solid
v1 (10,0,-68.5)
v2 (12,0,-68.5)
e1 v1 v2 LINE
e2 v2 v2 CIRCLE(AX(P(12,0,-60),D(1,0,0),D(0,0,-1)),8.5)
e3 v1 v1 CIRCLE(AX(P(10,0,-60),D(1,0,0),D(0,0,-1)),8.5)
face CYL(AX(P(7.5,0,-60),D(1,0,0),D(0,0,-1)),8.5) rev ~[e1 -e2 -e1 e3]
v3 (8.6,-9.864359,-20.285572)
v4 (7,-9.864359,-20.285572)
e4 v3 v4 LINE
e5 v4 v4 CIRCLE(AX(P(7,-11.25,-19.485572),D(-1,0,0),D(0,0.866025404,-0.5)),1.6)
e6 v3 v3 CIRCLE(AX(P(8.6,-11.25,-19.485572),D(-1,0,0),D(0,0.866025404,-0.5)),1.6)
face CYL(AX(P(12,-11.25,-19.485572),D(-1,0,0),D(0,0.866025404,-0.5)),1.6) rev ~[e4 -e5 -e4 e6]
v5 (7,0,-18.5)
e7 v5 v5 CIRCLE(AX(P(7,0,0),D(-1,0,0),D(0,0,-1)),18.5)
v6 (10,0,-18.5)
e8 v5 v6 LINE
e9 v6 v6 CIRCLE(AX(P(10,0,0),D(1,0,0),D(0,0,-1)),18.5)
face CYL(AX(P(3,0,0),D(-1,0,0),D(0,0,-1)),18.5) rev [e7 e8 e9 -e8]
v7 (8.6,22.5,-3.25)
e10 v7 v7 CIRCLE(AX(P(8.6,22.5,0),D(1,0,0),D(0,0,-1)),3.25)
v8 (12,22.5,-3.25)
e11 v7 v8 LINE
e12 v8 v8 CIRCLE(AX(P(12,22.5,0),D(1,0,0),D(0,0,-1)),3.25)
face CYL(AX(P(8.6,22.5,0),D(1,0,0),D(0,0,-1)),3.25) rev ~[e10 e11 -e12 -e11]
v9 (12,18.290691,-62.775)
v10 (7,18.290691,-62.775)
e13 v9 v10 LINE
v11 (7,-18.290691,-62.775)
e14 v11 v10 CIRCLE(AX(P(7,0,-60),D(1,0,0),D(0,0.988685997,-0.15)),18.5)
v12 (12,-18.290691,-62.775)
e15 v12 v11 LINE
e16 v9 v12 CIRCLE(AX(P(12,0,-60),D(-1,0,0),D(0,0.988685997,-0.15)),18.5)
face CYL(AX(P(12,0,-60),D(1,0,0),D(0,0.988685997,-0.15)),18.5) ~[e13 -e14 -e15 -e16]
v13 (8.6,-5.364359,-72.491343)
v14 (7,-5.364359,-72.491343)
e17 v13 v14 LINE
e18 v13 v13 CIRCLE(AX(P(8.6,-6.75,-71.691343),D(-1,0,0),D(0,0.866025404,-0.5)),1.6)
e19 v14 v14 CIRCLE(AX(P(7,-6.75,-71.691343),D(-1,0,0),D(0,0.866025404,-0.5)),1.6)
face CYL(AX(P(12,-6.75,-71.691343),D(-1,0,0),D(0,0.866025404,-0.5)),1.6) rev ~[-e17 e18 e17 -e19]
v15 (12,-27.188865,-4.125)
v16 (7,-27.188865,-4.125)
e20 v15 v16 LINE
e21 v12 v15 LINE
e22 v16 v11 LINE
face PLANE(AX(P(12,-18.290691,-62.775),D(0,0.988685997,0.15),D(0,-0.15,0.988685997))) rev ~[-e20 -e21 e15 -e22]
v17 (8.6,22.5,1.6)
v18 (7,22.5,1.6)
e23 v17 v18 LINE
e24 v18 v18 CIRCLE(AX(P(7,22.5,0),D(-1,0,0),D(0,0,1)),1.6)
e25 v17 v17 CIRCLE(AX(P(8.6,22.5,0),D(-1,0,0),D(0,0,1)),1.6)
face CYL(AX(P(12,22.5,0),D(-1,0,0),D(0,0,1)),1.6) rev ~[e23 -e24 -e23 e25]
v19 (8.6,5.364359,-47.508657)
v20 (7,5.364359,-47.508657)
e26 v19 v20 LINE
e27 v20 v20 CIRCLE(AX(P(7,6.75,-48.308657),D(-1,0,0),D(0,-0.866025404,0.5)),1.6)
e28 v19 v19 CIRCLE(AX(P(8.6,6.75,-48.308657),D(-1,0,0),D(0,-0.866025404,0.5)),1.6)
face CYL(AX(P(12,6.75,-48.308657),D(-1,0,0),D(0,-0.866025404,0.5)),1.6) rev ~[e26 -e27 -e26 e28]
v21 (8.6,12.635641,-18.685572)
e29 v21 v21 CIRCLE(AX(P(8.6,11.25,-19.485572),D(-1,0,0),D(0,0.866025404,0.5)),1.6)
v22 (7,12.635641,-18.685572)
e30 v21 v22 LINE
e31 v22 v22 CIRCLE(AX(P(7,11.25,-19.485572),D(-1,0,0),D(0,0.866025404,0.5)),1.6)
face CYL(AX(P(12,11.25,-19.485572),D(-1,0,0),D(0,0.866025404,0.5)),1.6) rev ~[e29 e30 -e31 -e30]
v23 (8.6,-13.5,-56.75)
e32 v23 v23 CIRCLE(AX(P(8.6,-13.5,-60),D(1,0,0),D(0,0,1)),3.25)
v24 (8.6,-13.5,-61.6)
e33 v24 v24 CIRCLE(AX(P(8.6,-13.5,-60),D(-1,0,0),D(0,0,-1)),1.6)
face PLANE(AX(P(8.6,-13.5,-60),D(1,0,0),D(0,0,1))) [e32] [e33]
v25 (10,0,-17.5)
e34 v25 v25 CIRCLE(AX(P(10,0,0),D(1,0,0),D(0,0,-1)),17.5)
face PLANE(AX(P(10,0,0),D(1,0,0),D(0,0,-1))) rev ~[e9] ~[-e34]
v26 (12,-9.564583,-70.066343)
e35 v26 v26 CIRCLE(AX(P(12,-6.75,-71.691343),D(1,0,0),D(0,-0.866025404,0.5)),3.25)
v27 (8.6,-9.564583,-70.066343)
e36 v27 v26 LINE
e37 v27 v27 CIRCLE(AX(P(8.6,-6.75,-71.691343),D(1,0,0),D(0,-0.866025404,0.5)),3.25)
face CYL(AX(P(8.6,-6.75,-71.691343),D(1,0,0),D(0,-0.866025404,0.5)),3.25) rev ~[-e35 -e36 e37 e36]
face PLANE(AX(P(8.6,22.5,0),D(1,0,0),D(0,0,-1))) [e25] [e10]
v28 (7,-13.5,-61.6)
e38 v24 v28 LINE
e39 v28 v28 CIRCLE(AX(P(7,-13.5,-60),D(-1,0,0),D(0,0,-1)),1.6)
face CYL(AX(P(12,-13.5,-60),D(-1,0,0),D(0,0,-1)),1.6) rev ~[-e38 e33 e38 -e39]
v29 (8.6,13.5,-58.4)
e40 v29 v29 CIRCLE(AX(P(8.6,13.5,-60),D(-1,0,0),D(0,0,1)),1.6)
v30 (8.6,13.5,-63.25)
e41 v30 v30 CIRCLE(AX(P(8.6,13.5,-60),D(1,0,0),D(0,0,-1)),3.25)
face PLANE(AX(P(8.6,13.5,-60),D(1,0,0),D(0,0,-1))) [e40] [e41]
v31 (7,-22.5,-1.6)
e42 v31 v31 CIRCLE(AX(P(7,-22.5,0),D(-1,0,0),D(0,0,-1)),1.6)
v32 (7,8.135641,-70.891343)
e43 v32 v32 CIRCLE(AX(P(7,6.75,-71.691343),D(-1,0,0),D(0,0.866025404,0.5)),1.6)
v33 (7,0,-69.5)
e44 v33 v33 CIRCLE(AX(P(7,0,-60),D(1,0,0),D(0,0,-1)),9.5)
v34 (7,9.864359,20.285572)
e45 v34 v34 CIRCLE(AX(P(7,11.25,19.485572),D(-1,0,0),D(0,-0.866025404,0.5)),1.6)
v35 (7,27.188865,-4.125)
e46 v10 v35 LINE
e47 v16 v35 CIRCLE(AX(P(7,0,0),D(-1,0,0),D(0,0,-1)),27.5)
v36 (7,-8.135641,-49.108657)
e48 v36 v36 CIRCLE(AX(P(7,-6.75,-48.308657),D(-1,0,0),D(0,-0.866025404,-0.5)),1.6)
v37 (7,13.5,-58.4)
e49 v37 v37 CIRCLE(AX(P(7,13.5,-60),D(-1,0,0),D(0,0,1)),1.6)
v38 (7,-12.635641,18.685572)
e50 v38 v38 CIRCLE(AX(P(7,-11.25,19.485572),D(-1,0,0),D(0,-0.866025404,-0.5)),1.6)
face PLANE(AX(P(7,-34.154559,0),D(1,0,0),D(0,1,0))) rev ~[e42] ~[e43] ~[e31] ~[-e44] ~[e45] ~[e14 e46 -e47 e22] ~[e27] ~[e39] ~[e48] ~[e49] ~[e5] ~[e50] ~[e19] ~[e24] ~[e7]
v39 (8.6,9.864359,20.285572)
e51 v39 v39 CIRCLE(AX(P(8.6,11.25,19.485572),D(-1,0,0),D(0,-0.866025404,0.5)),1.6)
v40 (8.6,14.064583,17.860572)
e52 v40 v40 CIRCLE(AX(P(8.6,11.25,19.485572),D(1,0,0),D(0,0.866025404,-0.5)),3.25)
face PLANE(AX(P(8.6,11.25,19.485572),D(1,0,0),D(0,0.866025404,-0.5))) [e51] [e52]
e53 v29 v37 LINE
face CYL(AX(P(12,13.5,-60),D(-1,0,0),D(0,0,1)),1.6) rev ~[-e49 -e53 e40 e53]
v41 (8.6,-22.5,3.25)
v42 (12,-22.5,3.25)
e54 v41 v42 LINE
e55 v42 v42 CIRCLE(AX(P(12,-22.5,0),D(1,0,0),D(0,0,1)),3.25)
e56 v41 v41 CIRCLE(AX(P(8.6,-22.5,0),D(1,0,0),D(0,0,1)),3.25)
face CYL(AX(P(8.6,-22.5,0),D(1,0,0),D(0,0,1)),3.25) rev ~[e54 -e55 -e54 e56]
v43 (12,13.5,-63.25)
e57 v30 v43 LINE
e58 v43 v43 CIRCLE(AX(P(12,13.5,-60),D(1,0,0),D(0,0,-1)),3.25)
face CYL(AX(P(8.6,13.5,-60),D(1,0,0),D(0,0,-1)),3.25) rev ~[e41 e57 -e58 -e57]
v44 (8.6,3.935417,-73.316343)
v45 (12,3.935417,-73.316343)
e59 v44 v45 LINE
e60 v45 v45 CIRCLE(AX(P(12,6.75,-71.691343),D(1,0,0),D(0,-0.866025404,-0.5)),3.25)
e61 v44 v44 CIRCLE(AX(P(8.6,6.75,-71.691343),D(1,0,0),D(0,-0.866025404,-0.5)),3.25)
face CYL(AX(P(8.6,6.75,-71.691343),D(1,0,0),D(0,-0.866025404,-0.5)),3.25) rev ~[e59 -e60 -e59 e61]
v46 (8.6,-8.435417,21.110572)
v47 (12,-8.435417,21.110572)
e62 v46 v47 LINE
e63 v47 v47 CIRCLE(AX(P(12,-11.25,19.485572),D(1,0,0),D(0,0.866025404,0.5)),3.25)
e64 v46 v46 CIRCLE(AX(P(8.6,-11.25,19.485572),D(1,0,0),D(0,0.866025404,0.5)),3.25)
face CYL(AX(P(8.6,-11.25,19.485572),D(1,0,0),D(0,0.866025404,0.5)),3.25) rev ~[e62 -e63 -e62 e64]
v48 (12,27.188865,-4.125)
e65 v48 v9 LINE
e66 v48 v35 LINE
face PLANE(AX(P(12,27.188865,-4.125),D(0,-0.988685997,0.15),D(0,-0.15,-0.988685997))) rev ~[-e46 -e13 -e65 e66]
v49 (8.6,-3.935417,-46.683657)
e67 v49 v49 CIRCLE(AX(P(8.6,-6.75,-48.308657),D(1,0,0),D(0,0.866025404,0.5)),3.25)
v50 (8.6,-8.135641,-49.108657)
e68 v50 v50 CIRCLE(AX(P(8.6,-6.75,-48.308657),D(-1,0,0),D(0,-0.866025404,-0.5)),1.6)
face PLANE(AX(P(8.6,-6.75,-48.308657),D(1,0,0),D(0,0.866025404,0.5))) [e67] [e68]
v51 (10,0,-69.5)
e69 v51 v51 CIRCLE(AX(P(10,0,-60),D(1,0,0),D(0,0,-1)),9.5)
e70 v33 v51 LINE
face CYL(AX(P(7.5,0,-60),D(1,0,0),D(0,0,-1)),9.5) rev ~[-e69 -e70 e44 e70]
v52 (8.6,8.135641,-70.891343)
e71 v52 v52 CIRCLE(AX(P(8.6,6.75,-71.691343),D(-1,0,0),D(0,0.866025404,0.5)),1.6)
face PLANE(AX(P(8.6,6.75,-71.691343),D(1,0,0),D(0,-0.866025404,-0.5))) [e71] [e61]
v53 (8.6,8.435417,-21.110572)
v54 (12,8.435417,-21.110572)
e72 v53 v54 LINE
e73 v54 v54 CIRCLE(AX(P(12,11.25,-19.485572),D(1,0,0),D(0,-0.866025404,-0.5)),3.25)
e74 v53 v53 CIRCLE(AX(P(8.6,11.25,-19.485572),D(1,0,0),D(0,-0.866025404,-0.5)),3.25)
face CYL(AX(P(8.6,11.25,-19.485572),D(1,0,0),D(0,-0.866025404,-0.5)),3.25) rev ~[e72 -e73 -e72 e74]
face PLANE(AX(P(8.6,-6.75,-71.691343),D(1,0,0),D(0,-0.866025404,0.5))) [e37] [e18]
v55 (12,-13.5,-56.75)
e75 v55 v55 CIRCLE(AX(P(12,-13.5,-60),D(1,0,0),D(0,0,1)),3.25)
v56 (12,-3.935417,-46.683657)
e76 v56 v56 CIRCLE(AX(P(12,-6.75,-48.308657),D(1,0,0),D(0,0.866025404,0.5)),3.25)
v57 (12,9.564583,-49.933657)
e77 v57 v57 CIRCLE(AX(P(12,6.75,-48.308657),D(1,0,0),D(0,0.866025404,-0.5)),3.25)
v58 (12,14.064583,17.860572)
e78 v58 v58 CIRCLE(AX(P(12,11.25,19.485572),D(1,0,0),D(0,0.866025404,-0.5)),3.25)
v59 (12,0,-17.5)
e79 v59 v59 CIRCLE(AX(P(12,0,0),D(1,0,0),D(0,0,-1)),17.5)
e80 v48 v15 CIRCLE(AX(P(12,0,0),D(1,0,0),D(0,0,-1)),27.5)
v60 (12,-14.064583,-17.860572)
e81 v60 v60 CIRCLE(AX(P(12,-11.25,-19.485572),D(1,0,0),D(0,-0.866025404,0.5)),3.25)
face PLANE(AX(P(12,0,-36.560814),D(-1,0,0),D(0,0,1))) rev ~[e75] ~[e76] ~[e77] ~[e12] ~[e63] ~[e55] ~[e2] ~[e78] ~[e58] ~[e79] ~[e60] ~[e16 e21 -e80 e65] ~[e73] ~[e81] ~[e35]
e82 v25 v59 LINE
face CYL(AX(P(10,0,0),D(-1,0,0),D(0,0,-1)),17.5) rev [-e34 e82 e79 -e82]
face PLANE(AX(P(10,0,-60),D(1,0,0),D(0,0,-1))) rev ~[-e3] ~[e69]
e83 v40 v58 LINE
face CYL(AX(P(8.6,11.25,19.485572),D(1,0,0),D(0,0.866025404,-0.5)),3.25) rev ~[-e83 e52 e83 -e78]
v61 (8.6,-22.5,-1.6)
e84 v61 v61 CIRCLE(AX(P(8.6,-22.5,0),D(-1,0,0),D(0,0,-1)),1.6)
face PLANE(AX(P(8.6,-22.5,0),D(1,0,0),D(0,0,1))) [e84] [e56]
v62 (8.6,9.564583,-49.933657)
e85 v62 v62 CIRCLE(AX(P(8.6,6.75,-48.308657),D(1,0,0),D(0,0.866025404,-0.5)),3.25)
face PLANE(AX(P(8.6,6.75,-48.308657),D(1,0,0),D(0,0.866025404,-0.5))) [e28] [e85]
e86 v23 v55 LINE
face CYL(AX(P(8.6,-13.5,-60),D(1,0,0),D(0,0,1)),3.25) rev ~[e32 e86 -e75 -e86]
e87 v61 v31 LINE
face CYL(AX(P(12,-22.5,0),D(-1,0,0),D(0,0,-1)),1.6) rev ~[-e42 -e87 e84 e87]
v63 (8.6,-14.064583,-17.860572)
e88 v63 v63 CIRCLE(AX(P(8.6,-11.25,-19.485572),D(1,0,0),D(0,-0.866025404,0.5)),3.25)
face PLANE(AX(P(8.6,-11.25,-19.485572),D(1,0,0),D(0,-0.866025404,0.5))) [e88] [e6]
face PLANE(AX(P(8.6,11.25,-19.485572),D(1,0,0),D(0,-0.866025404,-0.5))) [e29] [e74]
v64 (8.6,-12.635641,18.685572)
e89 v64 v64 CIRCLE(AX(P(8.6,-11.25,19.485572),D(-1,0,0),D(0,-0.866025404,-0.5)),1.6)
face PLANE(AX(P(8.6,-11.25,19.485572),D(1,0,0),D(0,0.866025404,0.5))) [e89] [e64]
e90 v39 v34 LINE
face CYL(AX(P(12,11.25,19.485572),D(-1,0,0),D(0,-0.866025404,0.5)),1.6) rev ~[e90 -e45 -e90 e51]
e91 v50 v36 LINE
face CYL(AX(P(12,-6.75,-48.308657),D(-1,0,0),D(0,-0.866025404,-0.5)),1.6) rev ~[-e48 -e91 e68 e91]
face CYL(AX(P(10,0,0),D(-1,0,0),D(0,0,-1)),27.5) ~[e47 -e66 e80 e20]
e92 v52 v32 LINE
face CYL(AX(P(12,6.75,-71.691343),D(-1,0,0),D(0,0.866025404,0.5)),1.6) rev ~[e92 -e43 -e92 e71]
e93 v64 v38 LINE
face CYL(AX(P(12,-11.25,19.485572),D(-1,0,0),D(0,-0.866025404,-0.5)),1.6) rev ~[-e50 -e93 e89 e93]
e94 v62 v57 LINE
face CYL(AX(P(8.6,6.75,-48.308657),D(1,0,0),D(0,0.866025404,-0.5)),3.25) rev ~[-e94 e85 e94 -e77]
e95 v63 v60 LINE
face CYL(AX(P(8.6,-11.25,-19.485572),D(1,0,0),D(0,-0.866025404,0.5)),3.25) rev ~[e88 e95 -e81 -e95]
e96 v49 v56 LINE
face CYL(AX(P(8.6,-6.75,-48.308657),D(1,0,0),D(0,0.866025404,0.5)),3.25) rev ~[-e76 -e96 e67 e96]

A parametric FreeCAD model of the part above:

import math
import FreeCAD as App
import Part
import Sketcher

V = App.Vector
Q = App.Units.Quantity

doc = App.newDocument("Part")
body = doc.addObject("PartDesign::Body", "Body")

# Sketch on YZ plane
sketch1 = body.newObject("Sketcher::SketchObject", "Sketch")
sketch1.AttachmentSupport = (doc.getObject("YZ_Plane"), [""])
sketch1.MapMode = "FlatFace"
sketch1.addGeometry(Part.Circle(V(0, 0, 0), V(0, 0, 1), 27.5), False)
sketch1.addConstraint(Sketcher.Constraint("Coincident", 0, 3, -1, 1))
sketch1.addConstraint(Sketcher.Constraint("Diameter", 0, Q("55 mm")))
pad1 = body.newObject("PartDesign::Pad", "Pad")
pad1.Profile = sketch1
pad1.Length = 2

# Sketch on YZ plane
sketch2 = body.newObject("Sketcher::SketchObject", "Sketch001")
sketch2.AttachmentSupport = (doc.getObject("YZ_Plane"), [""])
sketch2.MapMode = "FlatFace"
sketch2.AttachmentOffset = App.Placement(V(0, 0, 2), App.Rotation())
sketch2.addGeometry(Part.Circle(V(0, 0, 0), V(0, 0, 1), 27.5), False)
sketch2.addGeometry(Part.Circle(V(0, 0, 0), V(0, 0, 1), 17.5), False)
sketch2.addConstraint(Sketcher.Constraint("Coincident", 0, 3, -1, 1))
sketch2.addConstraint(Sketcher.Constraint("Coincident", 1, 3, -1, 1))
sketch2.addConstraint(Sketcher.Constraint("Diameter", 0, Q("55 mm")))
sketch2.addConstraint(Sketcher.Constraint("Diameter", 1, Q("35 mm")))
pad2 = body.newObject("PartDesign::Pad", "Pad001")
pad2.Profile = sketch2
pad2.Length = 1

# Sketch on YZ plane
sketch3 = body.newObject("Sketcher::SketchObject", "Sketch002")
sketch3.AttachmentSupport = (doc.getObject("YZ_Plane"), [""])
sketch3.MapMode = "FlatFace"
sketch3.AttachmentOffset = App.Placement(V(0, 0, 3), App.Rotation())
sketch3.addGeometry(Part.Circle(V(0, 0, 0), V(0, 0, 1), 27.5), False)
sketch3.addGeometry(Part.Circle(V(0, 0, 0), V(0, 0, 1), 18.5), False)
sketch3.addConstraint(Sketcher.Constraint("Coincident", 0, 3, -1, 1))
sketch3.addConstraint(Sketcher.Constraint("Coincident", 1, 3, -1, 1))
sketch3.addConstraint(Sketcher.Constraint("Diameter", 0, Q("55 mm")))
sketch3.addConstraint(Sketcher.Constraint("Diameter", 1, Q("37 mm")))
pad3 = body.newObject("PartDesign::Pad", "Pad002")
pad3.Profile = sketch3
pad3.Length = 7

# Sketch on YZ plane
sketch4 = body.newObject("Sketcher::SketchObject", "Sketch003")
sketch4.AttachmentSupport = (doc.getObject("YZ_Plane"), [""])
sketch4.MapMode = "FlatFace"
sketch4.AttachmentOffset = App.Placement(V(0, 0, 10), App.Rotation())
sketch4.addGeometry(Part.Circle(V(0, 0, 0), V(0, 0, 1), 27.5), False)
sketch4.addGeometry(Part.Circle(V(0, 0, 0), V(0, 0, 1), 17.5), False)
sketch4.addConstraint(Sketcher.Constraint("Coincident", 0, 3, -1, 1))
sketch4.addConstraint(Sketcher.Constraint("Coincident", 1, 3, -1, 1))
sketch4.addConstraint(Sketcher.Constraint("Diameter", 0, Q("55 mm")))
sketch4.addConstraint(Sketcher.Constraint("Diameter", 1, Q("35 mm")))
pad4 = body.newObject("PartDesign::Pad", "Pad003")
pad4.Profile = sketch4
pad4.Length = 2

# Sketch on YZ plane
sketch5 = body.newObject("Sketcher::SketchObject", "Sketch004")
sketch5.AttachmentSupport = (doc.getObject("YZ_Plane"), [""])
sketch5.MapMode = "FlatFace"
sketch5.AttachmentOffset = App.Placement(V(0, 0, 12), App.Rotation())
sketch5.addGeometry(Part.LineSegment(V(18.290691, -62.775, 0), V(27.188865, -4.125, 0)), False)
sketch5.addGeometry(Part.ArcOfCircle(Part.Circle(V(0, 0, 0), V(0, 0, 1), 27.5), math.radians(-171.373073), math.radians(-8.626927)), False)
sketch5.addGeometry(Part.LineSegment(V(-27.188865, -4.125, 0), V(-18.290691, -62.775, 0)), False)
sketch5.addGeometry(Part.ArcOfCircle(Part.Circle(V(0, -60, 0), V(0, 0, 1), 18.5), math.radians(-171.373073), math.radians(-8.626927)), False)
sketch5.addConstraint(Sketcher.Constraint("Tangent", 0, 2, 1, 2))
sketch5.addConstraint(Sketcher.Constraint("Tangent", 1, 1, 2, 1))
sketch5.addConstraint(Sketcher.Constraint("Tangent", 2, 2, 3, 1))
sketch5.addConstraint(Sketcher.Constraint("Tangent", 3, 2, 0, 1))
sketch5.addConstraint(Sketcher.Constraint("Coincident", 1, 3, -1, 1))
sketch5.addConstraint(Sketcher.Constraint("PointOnObject", 3, 3, -2))
sketch5.addConstraint(Sketcher.Constraint("Radius", 1, Q("27.5 mm")))
sketch5.addConstraint(Sketcher.Constraint("Radius", 3, Q("18.5 mm")))
sketch5.addConstraint(Sketcher.Constraint("DistanceY", 3, 3, -1, 1, Q("60 mm")))
pad5 = body.newObject("PartDesign::Pad", "Pad004")
pad5.Profile = sketch5
pad5.Length = 9
pad5.Reversed = True

# Sketch on YZ plane
sketch6 = body.newObject("Sketcher::SketchObject", "Sketch005")
sketch6.AttachmentSupport = (doc.getObject("YZ_Plane"), [""])
sketch6.MapMode = "FlatFace"
sketch6.AttachmentOffset = App.Placement(V(0, 0, 7.5), App.Rotation())
sketch6.addGeometry(Part.Circle(V(0, -60, 0), V(0, 0, 1), 8.5), False)
sketch6.addConstraint(Sketcher.Constraint("PointOnObject", 0, 3, -2))
sketch6.addConstraint(Sketcher.Constraint("Diameter", 0, Q("17 mm")))
sketch6.addConstraint(Sketcher.Constraint("DistanceY", 0, 3, -1, 1, Q("60 mm")))
pocket1 = body.newObject("PartDesign::Pocket", "Pocket")
pocket1.Profile = sketch6
pocket1.Length = 222
pocket1.Midplane = True

# Sketch on YZ plane
sketch7 = body.newObject("Sketcher::SketchObject", "Sketch006")
sketch7.AttachmentSupport = (doc.getObject("YZ_Plane"), [""])
sketch7.MapMode = "FlatFace"
sketch7.AttachmentOffset = App.Placement(V(0, 0, 7.5), App.Rotation())
sketch7.addGeometry(Part.Circle(V(0, -60, 0), V(0, 0, 1), 9.5), False)
sketch7.addConstraint(Sketcher.Constraint("PointOnObject", 0, 3, -2))
sketch7.addConstraint(Sketcher.Constraint("Diameter", 0, Q("19 mm")))
sketch7.addConstraint(Sketcher.Constraint("DistanceY", 0, 3, -1, 1, Q("60 mm")))
pocket2 = body.newObject("PartDesign::Pocket", "Pocket001")
pocket2.Profile = sketch7
pocket2.Length = 5
pocket2.Midplane = True

# Sketch on YZ plane
sketch8 = body.newObject("Sketcher::SketchObject", "Sketch007")
sketch8.AttachmentSupport = (doc.getObject("YZ_Plane"), [""])
sketch8.MapMode = "FlatFace"
sketch8.addGeometry(Part.Circle(V(0, 0, 0), V(0, 0, 1), 9.5), False)
sketch8.addConstraint(Sketcher.Constraint("Coincident", 0, 3, -1, 1))
sketch8.addConstraint(Sketcher.Constraint("Diameter", 0, Q("19 mm")))
pad6 = body.newObject("PartDesign::Pad", "Pad005")
pad6.Profile = sketch8
pad6.Length = 5
pad6.Reversed = True

# Sketch on YZ plane
sketch9 = body.newObject("Sketcher::SketchObject", "Sketch008")
sketch9.AttachmentSupport = (doc.getObject("YZ_Plane"), [""])
sketch9.MapMode = "FlatFace"
sketch9.AttachmentOffset = App.Placement(V(0, 0, 2), App.Rotation())
sketch9.addGeometry(Part.Circle(V(5, 0, 0), V(0, 0, 1), 1.7), False)
sketch9.addConstraint(Sketcher.Constraint("PointOnObject", 0, 3, -1))
sketch9.addConstraint(Sketcher.Constraint("Diameter", 0, Q("3.4 mm")))
sketch9.addConstraint(Sketcher.Constraint("DistanceX", -1, 1, 0, 3, Q("5 mm")))
doc.recompute()
hole = body.newObject("PartDesign::Hole", "Hole")
hole.Profile = sketch9
hole.ThreadType = "None"
hole.Diameter = 3.4
hole.DepthType = "ThroughAll"
hole.HoleCutType = "Counterbore"
hole.HoleCutDiameter = 6.5
hole.HoleCutDepth = 3.4
doc.recompute()

polarpattern = body.newObject("PartDesign::PolarPattern", "PolarPattern")
polarpattern.Originals = [hole]
polarpattern.Axis = (doc.getObject("X_Axis"), [""])
polarpattern.Angle = 360
polarpattern.Occurrences = 3
body.Tip = polarpattern

# Sketch on XY plane
sketch10 = body.newObject("Sketcher::SketchObject", "Sketch009")
sketch10.AttachmentSupport = (doc.getObject("XY_Plane"), [""])
sketch10.MapMode = "FlatFace"
sketch10.addGeometry(Part.LineSegment(V(-18.034739, 30.449658, 0), V(-18.034739, -34.154559, 0)), False)
sketch10.addGeometry(Part.LineSegment(V(-18.034739, -34.154559, 0), V(7, -34.154559, 0)), False)
sketch10.addGeometry(Part.LineSegment(V(7, -34.154559, 0), V(7, 30.449658, 0)), False)
sketch10.addGeometry(Part.LineSegment(V(7, 30.449658, 0), V(-18.034739, 30.449658, 0)), False)
sketch10.addConstraint(Sketcher.Constraint("Coincident", 0, 2, 1, 1))
sketch10.addConstraint(Sketcher.Constraint("Coincident", 1, 2, 2, 1))
sketch10.addConstraint(Sketcher.Constraint("Coincident", 2, 2, 3, 1))
sketch10.addConstraint(Sketcher.Constraint("Coincident", 3, 2, 0, 1))
sketch10.addConstraint(Sketcher.Constraint("Vertical", 0))
sketch10.addConstraint(Sketcher.Constraint("Horizontal", 1))
sketch10.addConstraint(Sketcher.Constraint("Vertical", 2))
sketch10.addConstraint(Sketcher.Constraint("Horizontal", 3))
sketch10.addConstraint(Sketcher.Constraint("DistanceX", -1, 1, 1, 2, Q("7 mm")))
sketch10.addConstraint(Sketcher.Constraint("DistanceX", 1, 1, 1, 2, Q("25.034739 mm")))
sketch10.addConstraint(Sketcher.Constraint("DistanceY", 0, 2, 0, 1, Q("64.604217 mm")))
sketch10.addConstraint(Sketcher.Constraint("DistanceY", 0, 2, -1, 1, Q("34.154559 mm")))
pocket3 = body.newObject("PartDesign::Pocket", "Pocket002")
pocket3.Profile = sketch10
pocket3.Length = 2222
pocket3.Midplane = True

# Sketch on YZ plane
sketch11 = body.newObject("Sketcher::SketchObject", "Sketch010")
sketch11.AttachmentSupport = (doc.getObject("YZ_Plane"), [""])
sketch11.MapMode = "FlatFace"
sketch11.AttachmentOffset = App.Placement(V(0, 0, 12), App.Rotation())
sketch11.addGeometry(Part.Circle(V(22.5, 0, 0), V(0, 0, 1), 1.6), False)
sketch11.addConstraint(Sketcher.Constraint("PointOnObject", 0, 3, -1))
sketch11.addConstraint(Sketcher.Constraint("Diameter", 0, Q("3.2 mm")))
sketch11.addConstraint(Sketcher.Constraint("DistanceX", -1, 1, 0, 3, Q("22.5 mm")))
doc.recompute()
hole2 = body.newObject("PartDesign::Hole", "Hole001")
hole2.Profile = sketch11
hole2.ThreadType = "None"
hole2.Diameter = 3.2
hole2.DepthType = "ThroughAll"
hole2.HoleCutType = "Counterbore"
hole2.HoleCutDiameter = 6.5
hole2.HoleCutDepth = 3.4
doc.recompute()

polarpattern2 = body.newObject("PartDesign::PolarPattern", "PolarPattern001")
polarpattern2.Originals = [hole2]
polarpattern2.Axis = (doc.getObject("X_Axis"), [""])
polarpattern2.Angle = 360
polarpattern2.Occurrences = 6
body.Tip = polarpattern2

# Sketch on YZ plane
sketch12 = body.newObject("Sketcher::SketchObject", "Sketch011")
sketch12.AttachmentSupport = (doc.getObject("YZ_Plane"), [""])
sketch12.MapMode = "FlatFace"
sketch12.AttachmentOffset = App.Placement(V(0, 0, 12), App.Rotation())
sketch12.addGeometry(Part.Circle(V(13.5, -60, 0), V(0, 0, 1), 1.6), False)
sketch12.addConstraint(Sketcher.Constraint("Diameter", 0, Q("3.2 mm")))
sketch12.addConstraint(Sketcher.Constraint("DistanceY", 0, 3, -1, 1, Q("60 mm")))
sketch12.addConstraint(Sketcher.Constraint("DistanceX", -1, 1, 0, 3, Q("13.5 mm")))
doc.recompute()
hole3 = body.newObject("PartDesign::Hole", "Hole002")
hole3.Profile = sketch12
hole3.ThreadType = "None"
hole3.Diameter = 3.2
hole3.DepthType = "ThroughAll"
hole3.HoleCutType = "Counterbore"
hole3.HoleCutDiameter = 6.5
hole3.HoleCutDepth = 3.4
doc.recompute()

datumline = body.newObject("PartDesign::Line", "DatumLine")
datumline.Placement = App.Placement(V(0, 0, -60), App.Rotation(V(0, 0, 1), V(1, 0, 0)))
polarpattern3 = body.newObject("PartDesign::PolarPattern", "PolarPattern002")
polarpattern3.Originals = [hole3]
polarpattern3.Axis = (datumline, [""])
polarpattern3.Angle = 360
polarpattern3.Occurrences = 6
body.Tip = polarpattern3

doc.recompute()
